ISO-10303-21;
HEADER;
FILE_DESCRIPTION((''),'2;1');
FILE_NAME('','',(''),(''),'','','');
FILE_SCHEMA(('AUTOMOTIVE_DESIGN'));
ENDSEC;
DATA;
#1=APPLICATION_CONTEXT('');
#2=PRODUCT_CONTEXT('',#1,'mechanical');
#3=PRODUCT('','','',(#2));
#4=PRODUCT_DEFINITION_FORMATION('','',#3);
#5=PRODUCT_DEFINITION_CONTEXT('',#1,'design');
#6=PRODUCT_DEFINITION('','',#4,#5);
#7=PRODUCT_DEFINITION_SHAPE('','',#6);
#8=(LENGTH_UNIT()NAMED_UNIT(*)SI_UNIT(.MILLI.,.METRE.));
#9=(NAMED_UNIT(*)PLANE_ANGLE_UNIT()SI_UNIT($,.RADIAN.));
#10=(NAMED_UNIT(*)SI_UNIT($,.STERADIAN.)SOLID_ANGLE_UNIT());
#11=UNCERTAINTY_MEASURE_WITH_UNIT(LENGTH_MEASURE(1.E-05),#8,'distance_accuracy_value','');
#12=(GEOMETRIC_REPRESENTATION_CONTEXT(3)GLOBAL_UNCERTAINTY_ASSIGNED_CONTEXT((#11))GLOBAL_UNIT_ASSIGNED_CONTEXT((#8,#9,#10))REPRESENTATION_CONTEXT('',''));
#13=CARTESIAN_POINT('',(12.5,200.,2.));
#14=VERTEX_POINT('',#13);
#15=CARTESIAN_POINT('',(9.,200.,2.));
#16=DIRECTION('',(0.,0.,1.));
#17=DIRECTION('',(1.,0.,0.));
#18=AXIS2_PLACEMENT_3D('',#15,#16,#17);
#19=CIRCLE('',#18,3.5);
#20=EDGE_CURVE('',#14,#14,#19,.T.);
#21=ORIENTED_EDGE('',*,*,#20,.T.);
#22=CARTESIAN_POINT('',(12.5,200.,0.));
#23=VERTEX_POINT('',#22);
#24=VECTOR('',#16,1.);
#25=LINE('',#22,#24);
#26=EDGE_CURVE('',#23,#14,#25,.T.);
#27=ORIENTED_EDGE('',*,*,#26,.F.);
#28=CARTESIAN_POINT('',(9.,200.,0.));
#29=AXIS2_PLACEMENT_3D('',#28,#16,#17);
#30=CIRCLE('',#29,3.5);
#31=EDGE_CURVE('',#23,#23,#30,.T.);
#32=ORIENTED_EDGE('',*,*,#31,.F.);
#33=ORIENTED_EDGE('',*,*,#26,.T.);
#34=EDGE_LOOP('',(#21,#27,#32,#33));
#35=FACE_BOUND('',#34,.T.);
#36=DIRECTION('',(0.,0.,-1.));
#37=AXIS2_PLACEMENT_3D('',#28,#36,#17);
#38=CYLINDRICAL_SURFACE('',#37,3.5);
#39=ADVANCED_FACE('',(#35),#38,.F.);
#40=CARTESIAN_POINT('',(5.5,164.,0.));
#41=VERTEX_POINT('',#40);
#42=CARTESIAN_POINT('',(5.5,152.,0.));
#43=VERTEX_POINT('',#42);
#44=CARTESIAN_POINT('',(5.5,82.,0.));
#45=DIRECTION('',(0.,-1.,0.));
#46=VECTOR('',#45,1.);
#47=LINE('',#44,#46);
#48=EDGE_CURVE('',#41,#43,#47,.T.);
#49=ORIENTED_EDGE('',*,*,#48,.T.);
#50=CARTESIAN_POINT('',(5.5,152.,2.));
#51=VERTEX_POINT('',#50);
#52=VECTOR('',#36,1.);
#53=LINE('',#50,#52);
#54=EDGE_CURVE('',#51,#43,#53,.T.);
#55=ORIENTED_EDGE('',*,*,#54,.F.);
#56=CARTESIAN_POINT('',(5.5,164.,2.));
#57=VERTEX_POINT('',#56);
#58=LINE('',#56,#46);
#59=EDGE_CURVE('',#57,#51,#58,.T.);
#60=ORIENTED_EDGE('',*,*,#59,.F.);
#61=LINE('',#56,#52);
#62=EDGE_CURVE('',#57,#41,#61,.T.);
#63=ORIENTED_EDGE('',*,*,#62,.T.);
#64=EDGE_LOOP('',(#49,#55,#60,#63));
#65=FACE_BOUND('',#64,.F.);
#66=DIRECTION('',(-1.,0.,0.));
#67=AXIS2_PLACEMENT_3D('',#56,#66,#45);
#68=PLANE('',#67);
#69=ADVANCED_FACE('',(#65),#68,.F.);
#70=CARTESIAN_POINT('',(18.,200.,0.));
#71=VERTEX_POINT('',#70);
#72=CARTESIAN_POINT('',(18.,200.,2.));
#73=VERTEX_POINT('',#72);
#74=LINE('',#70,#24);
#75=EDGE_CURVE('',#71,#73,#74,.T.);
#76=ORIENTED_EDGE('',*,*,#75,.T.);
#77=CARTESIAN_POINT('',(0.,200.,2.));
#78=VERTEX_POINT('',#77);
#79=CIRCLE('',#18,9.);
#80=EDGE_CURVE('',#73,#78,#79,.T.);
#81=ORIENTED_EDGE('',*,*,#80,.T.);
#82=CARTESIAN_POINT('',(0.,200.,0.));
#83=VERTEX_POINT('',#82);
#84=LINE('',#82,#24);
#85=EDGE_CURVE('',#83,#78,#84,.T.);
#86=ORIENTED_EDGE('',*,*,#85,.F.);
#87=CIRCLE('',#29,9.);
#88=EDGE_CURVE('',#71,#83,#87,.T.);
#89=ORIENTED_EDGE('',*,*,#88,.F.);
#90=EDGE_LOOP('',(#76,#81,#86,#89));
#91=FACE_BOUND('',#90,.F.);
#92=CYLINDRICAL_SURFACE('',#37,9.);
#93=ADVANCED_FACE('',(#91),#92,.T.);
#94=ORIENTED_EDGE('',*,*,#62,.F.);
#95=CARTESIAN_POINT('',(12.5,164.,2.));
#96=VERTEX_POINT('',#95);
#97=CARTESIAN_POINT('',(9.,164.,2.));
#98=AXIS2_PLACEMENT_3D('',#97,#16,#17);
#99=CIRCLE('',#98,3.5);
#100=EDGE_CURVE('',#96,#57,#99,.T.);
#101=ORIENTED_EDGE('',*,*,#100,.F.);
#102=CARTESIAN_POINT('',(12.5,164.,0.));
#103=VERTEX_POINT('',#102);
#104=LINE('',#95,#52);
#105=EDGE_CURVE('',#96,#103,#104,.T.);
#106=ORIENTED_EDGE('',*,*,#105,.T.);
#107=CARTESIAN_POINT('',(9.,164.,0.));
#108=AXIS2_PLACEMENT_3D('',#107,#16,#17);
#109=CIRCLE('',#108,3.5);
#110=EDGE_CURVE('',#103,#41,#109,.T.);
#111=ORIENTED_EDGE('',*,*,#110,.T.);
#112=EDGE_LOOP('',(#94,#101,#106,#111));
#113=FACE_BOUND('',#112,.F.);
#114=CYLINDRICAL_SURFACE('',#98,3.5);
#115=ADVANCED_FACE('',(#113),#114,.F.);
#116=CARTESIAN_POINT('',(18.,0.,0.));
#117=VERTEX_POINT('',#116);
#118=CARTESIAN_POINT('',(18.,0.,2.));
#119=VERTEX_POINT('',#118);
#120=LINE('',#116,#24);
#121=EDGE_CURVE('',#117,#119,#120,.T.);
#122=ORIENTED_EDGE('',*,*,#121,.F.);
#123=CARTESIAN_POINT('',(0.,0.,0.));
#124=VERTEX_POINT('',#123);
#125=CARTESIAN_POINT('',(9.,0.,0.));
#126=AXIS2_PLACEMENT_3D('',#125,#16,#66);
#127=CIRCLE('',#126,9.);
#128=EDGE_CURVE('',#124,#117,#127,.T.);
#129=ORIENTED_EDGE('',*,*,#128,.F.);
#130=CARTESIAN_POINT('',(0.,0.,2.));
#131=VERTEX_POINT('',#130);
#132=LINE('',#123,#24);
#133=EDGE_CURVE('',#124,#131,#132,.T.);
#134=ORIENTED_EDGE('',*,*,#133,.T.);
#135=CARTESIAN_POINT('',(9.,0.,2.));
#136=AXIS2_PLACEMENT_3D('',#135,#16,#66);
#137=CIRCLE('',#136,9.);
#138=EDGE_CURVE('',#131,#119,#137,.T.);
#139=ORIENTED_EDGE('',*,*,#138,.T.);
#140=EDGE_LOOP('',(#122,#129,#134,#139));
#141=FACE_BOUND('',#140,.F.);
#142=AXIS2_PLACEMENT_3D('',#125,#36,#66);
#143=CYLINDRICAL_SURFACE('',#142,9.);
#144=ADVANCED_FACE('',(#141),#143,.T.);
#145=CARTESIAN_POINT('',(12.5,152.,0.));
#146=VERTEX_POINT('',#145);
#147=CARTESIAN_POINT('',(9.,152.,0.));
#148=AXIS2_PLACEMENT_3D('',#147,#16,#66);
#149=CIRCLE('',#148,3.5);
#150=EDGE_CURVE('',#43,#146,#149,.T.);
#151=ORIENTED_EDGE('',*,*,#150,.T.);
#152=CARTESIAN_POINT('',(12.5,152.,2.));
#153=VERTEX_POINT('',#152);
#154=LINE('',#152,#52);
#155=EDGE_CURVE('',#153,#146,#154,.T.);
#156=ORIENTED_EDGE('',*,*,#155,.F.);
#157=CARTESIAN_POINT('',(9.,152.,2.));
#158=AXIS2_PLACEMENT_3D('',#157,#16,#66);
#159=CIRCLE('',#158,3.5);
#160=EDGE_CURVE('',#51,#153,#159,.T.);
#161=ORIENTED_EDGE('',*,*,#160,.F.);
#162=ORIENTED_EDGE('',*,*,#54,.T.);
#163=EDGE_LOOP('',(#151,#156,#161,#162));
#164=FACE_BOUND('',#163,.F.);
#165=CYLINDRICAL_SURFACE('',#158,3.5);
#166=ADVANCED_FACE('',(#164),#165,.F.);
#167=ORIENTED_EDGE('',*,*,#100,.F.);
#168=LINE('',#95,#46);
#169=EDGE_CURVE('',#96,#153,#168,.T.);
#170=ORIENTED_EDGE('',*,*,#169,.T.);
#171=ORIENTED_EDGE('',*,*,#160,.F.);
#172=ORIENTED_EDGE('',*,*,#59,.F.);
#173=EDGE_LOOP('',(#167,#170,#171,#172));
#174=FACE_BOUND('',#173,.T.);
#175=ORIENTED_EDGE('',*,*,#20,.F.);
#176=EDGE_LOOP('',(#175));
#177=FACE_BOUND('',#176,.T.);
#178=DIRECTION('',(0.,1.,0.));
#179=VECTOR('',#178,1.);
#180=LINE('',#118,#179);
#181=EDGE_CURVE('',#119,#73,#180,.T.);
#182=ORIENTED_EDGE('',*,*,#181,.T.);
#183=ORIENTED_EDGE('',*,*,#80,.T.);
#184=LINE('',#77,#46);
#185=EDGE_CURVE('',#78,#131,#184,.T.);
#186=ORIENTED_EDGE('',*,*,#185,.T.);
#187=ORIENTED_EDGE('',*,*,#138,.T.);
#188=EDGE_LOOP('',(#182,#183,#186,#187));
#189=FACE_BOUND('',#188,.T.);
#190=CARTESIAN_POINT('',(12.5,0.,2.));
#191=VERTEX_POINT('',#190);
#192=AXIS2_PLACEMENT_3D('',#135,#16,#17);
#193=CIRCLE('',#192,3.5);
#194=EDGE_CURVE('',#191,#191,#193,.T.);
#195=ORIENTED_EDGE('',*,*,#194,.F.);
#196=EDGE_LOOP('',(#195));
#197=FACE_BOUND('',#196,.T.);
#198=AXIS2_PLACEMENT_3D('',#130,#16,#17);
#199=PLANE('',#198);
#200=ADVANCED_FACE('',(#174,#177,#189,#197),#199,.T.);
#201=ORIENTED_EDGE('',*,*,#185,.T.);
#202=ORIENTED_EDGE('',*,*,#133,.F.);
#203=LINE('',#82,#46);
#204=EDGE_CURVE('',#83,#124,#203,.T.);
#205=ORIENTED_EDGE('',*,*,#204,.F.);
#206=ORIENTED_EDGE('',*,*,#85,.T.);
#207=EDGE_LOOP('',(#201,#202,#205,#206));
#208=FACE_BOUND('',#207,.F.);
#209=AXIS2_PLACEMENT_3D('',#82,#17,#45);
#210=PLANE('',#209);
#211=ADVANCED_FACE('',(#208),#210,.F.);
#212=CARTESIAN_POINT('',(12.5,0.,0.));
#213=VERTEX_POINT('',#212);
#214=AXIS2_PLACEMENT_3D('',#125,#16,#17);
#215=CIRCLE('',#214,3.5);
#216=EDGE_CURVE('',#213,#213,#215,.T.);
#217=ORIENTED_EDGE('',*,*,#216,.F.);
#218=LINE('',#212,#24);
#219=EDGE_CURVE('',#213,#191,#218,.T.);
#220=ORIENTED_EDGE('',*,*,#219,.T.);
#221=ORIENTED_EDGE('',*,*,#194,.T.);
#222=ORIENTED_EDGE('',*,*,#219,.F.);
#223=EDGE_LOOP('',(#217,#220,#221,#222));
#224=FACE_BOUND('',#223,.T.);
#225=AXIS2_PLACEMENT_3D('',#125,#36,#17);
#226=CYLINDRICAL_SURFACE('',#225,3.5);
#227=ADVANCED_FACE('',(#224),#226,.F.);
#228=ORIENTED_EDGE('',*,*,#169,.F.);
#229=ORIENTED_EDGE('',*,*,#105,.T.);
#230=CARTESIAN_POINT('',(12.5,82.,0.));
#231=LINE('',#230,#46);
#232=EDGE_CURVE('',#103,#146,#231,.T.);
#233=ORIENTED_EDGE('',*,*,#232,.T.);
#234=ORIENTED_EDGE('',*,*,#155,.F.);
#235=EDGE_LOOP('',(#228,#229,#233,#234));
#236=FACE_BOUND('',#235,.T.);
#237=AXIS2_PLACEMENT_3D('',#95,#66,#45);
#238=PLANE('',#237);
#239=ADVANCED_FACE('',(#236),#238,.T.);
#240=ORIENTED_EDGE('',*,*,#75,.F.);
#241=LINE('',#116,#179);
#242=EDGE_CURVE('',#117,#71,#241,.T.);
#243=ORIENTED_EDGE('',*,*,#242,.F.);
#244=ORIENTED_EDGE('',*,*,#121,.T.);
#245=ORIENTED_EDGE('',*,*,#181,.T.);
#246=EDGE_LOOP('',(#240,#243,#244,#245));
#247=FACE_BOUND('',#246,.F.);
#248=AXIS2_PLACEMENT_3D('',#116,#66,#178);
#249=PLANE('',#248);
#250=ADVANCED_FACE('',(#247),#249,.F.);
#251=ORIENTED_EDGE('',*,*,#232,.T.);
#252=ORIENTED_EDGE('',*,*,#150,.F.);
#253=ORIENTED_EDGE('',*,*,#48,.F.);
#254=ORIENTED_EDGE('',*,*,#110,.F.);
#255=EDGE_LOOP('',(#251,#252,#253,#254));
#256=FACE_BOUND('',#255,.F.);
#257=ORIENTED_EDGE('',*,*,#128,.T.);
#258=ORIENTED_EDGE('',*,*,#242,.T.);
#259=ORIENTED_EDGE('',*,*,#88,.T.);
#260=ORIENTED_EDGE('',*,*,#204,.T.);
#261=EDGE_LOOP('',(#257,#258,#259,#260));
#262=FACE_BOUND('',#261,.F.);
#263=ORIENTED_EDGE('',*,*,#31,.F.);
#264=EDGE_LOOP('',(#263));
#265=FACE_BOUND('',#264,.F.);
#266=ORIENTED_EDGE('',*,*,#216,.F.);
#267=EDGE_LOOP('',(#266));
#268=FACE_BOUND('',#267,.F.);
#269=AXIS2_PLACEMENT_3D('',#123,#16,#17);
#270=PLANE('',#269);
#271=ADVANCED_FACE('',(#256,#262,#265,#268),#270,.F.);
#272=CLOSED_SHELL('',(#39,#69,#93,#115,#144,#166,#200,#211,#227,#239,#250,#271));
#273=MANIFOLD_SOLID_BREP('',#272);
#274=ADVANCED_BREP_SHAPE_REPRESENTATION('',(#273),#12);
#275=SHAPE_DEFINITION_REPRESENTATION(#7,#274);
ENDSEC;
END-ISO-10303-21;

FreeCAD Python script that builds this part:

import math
import FreeCAD as App
import Part
import Sketcher

V = App.Vector

doc = App.newDocument("Part")
params = doc.addObject("Spreadsheet::Sheet", "Params")
for row, (alias, value) in enumerate([
    ("sketch1_diameter", "7 mm"),
    ("sketch1_radius", "9 mm"),
    ("sketch1_height", "200 mm"),
    ("pad1_length", "2 mm"),
    ("sketch2_radius", "3.5 mm"),
    ("sketch2_height", "12 mm"),
], start=1):
    params.set(f"A{row}", alias)
    params.set(f"B{row}", "=" + value)
    params.setAlias(f"B{row}", alias)

body = doc.addObject("PartDesign::Body", "Body")

# Sketch on XY plane
sketch1 = doc.addObject("Sketcher::SketchObject", "Sketch")
body.addObject(sketch1)
sketch1.AttachmentSupport = (doc.XY_Plane, [""])
sketch1.MapMode = "FlatFace"
sketch1.addGeometry(Part.ArcOfCircle(Part.Circle(V(9, 0, 0), V(0, 0, 1), 9), math.radians(180), math.radians(360)), False)
sketch1.addGeometry(Part.LineSegment(V(18, 0, 0), V(18, 200, 0)), False)
sketch1.addGeometry(Part.ArcOfCircle(Part.Circle(V(9, 200, 0), V(0, 0, 1), 9), math.radians(0), math.radians(180)), False)
sketch1.addGeometry(Part.LineSegment(V(0, 200, 0), V(0, 0, 0)), False)
sketch1.addGeometry(Part.Circle(V(9, 0, 0), V(0, 0, 1), 3.5), False)
sketch1.addGeometry(Part.Circle(V(9, 200, 0), V(0, 0, 1), 3.5), False)
sketch1.addConstraint(Sketcher.Constraint("Tangent", 0, 2, 1, 1))
sketch1.addConstraint(Sketcher.Constraint("Tangent", 1, 2, 2, 1))
sketch1.addConstraint(Sketcher.Constraint("Tangent", 2, 2, 3, 1))
sketch1.addConstraint(Sketcher.Constraint("Tangent", 3, 2, 0, 1))
sketch1.addConstraint(Sketcher.Constraint("Vertical", 1))
sketch1.addConstraint(Sketcher.Constraint("Vertical", 3))
sketch1.addConstraint(Sketcher.Constraint("Coincident", 3, 2, -1, 1))
sketch1.addConstraint(Sketcher.Constraint("Coincident", 4, 3, 0, 3))
sketch1.addConstraint(Sketcher.Constraint("Coincident", 5, 3, 2, 3))
sketch1.addConstraint(Sketcher.Constraint("Equal", 4, 5))
sketch1.addConstraint(Sketcher.Constraint("Diameter", 4, 7.0))
sketch1.addConstraint(Sketcher.Constraint("Radius", 0, 9.0))
sketch1.addConstraint(Sketcher.Constraint("DistanceY", 1, 1, 1, 2, 200.0))
sketch1.setExpression("Constraints[10]", "Params.sketch1_diameter")
sketch1.setExpression("Constraints[11]", "Params.sketch1_radius")
sketch1.setExpression("Constraints[12]", "Params.sketch1_height")
pad1 = doc.addObject("PartDesign::Pad", "Pad")
body.addObject(pad1)
pad1.Profile = sketch1
pad1.setExpression("Length", "Params.pad1_length")

# Sketch on XY plane
sketch2 = doc.addObject("Sketcher::SketchObject", "Sketch001")
body.addObject(sketch2)
sketch2.AttachmentSupport = (doc.XY_Plane, [""])
sketch2.MapMode = "FlatFace"
sketch2.AttachmentOffset = App.Placement(V(0, 0, 2), App.Rotation())
sketch2.addGeometry(Part.LineSegment(V(5.5, 164, 0), V(5.5, 152, 0)), False)
sketch2.addGeometry(Part.ArcOfCircle(Part.Circle(V(9, 152, 0), V(0, 0, 1), 3.5), math.radians(180), math.radians(360)), False)
sketch2.addGeometry(Part.LineSegment(V(12.5, 152, 0), V(12.5, 164, 0)), False)
sketch2.addGeometry(Part.ArcOfCircle(Part.Circle(V(9, 164, 0), V(0, 0, 1), 3.5), math.radians(0), math.radians(180)), False)
sketch2.addConstraint(Sketcher.Constraint("Tangent", 0, 2, 1, 1))
sketch2.addConstraint(Sketcher.Constraint("Tangent", 1, 2, 2, 1))
sketch2.addConstraint(Sketcher.Constraint("Tangent", 2, 2, 3, 1))
sketch2.addConstraint(Sketcher.Constraint("Tangent", 3, 2, 0, 1))
sketch2.addConstraint(Sketcher.Constraint("Vertical", 0))
sketch2.addConstraint(Sketcher.Constraint("Vertical", 2))
sketch2.addConstraint(Sketcher.Constraint("Radius", 1, 3.5))
sketch2.addConstraint(Sketcher.Constraint("DistanceY", 0, 2, 0, 1, 12.0))
sketch2.addConstraint(Sketcher.Constraint("DistanceX", -1, 1, 1, 3, 9.0))
sketch2.addConstraint(Sketcher.Constraint("DistanceY", -1, 1, 1, 3, 152.0))
sketch2.setExpression("Constraints[6]", "Params.sketch2_radius")
sketch2.setExpression("Constraints[7]", "Params.sketch2_height")
pocket1 = doc.addObject("PartDesign::Pocket", "Pocket")
body.addObject(pocket1)
pocket1.Profile = sketch2
pocket1.Type = "ThroughAll"

doc.recompute()
